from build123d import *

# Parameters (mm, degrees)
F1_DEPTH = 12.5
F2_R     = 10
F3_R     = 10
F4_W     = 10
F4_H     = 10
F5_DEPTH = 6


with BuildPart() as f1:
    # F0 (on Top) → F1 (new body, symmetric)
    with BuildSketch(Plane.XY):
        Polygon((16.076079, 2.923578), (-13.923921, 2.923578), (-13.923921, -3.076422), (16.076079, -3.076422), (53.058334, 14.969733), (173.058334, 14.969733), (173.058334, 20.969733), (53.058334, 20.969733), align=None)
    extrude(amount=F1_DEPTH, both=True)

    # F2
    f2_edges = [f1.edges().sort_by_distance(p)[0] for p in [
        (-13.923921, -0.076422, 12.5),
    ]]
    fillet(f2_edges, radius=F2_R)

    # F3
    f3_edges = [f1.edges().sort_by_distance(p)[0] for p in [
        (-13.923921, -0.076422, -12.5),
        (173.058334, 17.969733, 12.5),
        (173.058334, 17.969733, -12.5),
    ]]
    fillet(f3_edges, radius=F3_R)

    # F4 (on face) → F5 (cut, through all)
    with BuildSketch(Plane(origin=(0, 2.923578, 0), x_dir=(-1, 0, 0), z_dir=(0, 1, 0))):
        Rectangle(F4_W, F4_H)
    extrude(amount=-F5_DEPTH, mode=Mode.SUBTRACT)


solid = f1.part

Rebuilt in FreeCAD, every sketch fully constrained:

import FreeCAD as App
import Part
import Sketcher


def edges_at(feature, points):
    """Names of the edges that pass closest to the given points."""
    edges = feature.Shape.Edges
    near = lambda p: min(range(len(edges)), key=lambda i: edges[i].distToShape(Part.Vertex(*p))[0])
    return sorted({f"Edge{near(p) + 1}" for p in points})

doc = App.newDocument("Part")
body = doc.addObject("PartDesign::Body", "Body")

sketch1 = body.newObject("Sketcher::SketchObject", "Sketch")
sketch1.AttachmentSupport = (doc.getObject("XY_Plane"), [""])
sketch1.MapMode = "FlatFace"
sketch1.addGeometry([
    Part.LineSegment(App.Vector(16, 3, 0), App.Vector(-14, 3, 0)),
    Part.LineSegment(App.Vector(-14, 3, 0), App.Vector(-14, -3, 0)),
    Part.LineSegment(App.Vector(-14, -3, 0), App.Vector(16, -3, 0)),
    Part.LineSegment(App.Vector(16, -3, 0), App.Vector(53, 15, 0)),
    Part.LineSegment(App.Vector(53, 15, 0), App.Vector(173, 15, 0)),
    Part.LineSegment(App.Vector(173, 15, 0), App.Vector(173, 21, 0)),
    Part.LineSegment(App.Vector(173, 21, 0), App.Vector(53, 21, 0)),
    Part.LineSegment(App.Vector(53, 21, 0), App.Vector(16, 3, 0)),
], False)
sketch1.addConstraint([
    Sketcher.Constraint("Coincident", 0, 2, 1, 1),
    Sketcher.Constraint("Coincident", 1, 2, 2, 1),
    Sketcher.Constraint("Coincident", 2, 2, 3, 1),
    Sketcher.Constraint("Coincident", 3, 2, 4, 1),
    Sketcher.Constraint("Coincident", 4, 2, 5, 1),
    Sketcher.Constraint("Coincident", 5, 2, 6, 1),
    Sketcher.Constraint("Coincident", 6, 2, 7, 1),
    Sketcher.Constraint("Coincident", 7, 2, 0, 1),
    Sketcher.Constraint("Horizontal", 0),
    Sketcher.Constraint("Vertical", 1),
    Sketcher.Constraint("Horizontal", 2),
    Sketcher.Constraint("Horizontal", 4),
    Sketcher.Constraint("Vertical", 5),
    Sketcher.Constraint("Horizontal", 6),
    Sketcher.Constraint("Parallel", 3, 7),
    Sketcher.Constraint("Vertical", 3, 2, 6, 2),
    Sketcher.Constraint("Vertical", 2, 2, 7, 2),
    Sketcher.Constraint("DistanceX", 0, 2, 0, 1, 30.0),
    Sketcher.Constraint("DistanceX", 4, 1, 4, 2, 120.0),
    Sketcher.Constraint("DistanceY", 1, 2, 1, 1, 6.0),
    Sketcher.Constraint("DistanceX", 0, 2, -1, 1, 13.923921),
    Sketcher.Constraint("DistanceY", -1, 1, 0, 2, 2.923578),
    Sketcher.Constraint("Distance", 3, 41.150345),
    Sketcher.Constraint("DistanceX", -1, 1, 3, 2, 53.058334),
])
pad1 = body.newObject("PartDesign::Pad", "Pad")
pad1.Profile = sketch1
pad1.Length = 25
pad1.Midplane = True
doc.recompute()

fillet = body.newObject("PartDesign::Fillet", "Fillet")
fillet.Base = (pad1, edges_at(pad1, [(-13.924, -0.076, 12.5)]))
fillet.Radius = 10
doc.recompute()

fillet2 = body.newObject("PartDesign::Fillet", "Fillet001")
fillet2.Base = (fillet, edges_at(fillet, [(-13.924, -0.076, -12.5), (173.058, 17.97, 12.5), (173.058, 17.97, -12.5)]))
fillet2.Radius = 10

sketch2 = body.newObject("Sketcher::SketchObject", "Sketch001")
sketch2.AttachmentSupport = (doc.getObject("XZ_Plane"), [""])
sketch2.MapMode = "FlatFace"
sketch2.AttachmentOffset = App.Placement(App.Vector(0, 0, -2.923578), App.Rotation())
sketch2.addGeometry([
    Part.LineSegment(App.Vector(5, 5, 0), App.Vector(5, -5, 0)),
    Part.LineSegment(App.Vector(5, -5, 0), App.Vector(-5, -5, 0)),
    Part.LineSegment(App.Vector(-5, -5, 0), App.Vector(-5, 5, 0)),
    Part.LineSegment(App.Vector(-5, 5, 0), App.Vector(5, 5, 0)),
], False)
sketch2.addConstraint([
    Sketcher.Constraint("Coincident", 0, 2, 1, 1),
    Sketcher.Constraint("Coincident", 1, 2, 2, 1),
    Sketcher.Constraint("Coincident", 2, 2, 3, 1),
    Sketcher.Constraint("Coincident", 3, 2, 0, 1),
    Sketcher.Constraint("Vertical", 0),
    Sketcher.Constraint("Horizontal", 1),
    Sketcher.Constraint("Vertical", 2),
    Sketcher.Constraint("Horizontal", 3),
    Sketcher.Constraint("Symmetric", 0, 2, 2, 2, -1, 1),
    Sketcher.Constraint("Equal", 3, 0),
    Sketcher.Constraint("DistanceX", 1, 2, 1, 1, 10.0),
])
pocket1 = body.newObject("PartDesign::Pocket", "Pocket")
pocket1.Profile = sketch2
pocket1.Type = "ThroughAll"
pocket1.Reversed = True

doc.recompute()
